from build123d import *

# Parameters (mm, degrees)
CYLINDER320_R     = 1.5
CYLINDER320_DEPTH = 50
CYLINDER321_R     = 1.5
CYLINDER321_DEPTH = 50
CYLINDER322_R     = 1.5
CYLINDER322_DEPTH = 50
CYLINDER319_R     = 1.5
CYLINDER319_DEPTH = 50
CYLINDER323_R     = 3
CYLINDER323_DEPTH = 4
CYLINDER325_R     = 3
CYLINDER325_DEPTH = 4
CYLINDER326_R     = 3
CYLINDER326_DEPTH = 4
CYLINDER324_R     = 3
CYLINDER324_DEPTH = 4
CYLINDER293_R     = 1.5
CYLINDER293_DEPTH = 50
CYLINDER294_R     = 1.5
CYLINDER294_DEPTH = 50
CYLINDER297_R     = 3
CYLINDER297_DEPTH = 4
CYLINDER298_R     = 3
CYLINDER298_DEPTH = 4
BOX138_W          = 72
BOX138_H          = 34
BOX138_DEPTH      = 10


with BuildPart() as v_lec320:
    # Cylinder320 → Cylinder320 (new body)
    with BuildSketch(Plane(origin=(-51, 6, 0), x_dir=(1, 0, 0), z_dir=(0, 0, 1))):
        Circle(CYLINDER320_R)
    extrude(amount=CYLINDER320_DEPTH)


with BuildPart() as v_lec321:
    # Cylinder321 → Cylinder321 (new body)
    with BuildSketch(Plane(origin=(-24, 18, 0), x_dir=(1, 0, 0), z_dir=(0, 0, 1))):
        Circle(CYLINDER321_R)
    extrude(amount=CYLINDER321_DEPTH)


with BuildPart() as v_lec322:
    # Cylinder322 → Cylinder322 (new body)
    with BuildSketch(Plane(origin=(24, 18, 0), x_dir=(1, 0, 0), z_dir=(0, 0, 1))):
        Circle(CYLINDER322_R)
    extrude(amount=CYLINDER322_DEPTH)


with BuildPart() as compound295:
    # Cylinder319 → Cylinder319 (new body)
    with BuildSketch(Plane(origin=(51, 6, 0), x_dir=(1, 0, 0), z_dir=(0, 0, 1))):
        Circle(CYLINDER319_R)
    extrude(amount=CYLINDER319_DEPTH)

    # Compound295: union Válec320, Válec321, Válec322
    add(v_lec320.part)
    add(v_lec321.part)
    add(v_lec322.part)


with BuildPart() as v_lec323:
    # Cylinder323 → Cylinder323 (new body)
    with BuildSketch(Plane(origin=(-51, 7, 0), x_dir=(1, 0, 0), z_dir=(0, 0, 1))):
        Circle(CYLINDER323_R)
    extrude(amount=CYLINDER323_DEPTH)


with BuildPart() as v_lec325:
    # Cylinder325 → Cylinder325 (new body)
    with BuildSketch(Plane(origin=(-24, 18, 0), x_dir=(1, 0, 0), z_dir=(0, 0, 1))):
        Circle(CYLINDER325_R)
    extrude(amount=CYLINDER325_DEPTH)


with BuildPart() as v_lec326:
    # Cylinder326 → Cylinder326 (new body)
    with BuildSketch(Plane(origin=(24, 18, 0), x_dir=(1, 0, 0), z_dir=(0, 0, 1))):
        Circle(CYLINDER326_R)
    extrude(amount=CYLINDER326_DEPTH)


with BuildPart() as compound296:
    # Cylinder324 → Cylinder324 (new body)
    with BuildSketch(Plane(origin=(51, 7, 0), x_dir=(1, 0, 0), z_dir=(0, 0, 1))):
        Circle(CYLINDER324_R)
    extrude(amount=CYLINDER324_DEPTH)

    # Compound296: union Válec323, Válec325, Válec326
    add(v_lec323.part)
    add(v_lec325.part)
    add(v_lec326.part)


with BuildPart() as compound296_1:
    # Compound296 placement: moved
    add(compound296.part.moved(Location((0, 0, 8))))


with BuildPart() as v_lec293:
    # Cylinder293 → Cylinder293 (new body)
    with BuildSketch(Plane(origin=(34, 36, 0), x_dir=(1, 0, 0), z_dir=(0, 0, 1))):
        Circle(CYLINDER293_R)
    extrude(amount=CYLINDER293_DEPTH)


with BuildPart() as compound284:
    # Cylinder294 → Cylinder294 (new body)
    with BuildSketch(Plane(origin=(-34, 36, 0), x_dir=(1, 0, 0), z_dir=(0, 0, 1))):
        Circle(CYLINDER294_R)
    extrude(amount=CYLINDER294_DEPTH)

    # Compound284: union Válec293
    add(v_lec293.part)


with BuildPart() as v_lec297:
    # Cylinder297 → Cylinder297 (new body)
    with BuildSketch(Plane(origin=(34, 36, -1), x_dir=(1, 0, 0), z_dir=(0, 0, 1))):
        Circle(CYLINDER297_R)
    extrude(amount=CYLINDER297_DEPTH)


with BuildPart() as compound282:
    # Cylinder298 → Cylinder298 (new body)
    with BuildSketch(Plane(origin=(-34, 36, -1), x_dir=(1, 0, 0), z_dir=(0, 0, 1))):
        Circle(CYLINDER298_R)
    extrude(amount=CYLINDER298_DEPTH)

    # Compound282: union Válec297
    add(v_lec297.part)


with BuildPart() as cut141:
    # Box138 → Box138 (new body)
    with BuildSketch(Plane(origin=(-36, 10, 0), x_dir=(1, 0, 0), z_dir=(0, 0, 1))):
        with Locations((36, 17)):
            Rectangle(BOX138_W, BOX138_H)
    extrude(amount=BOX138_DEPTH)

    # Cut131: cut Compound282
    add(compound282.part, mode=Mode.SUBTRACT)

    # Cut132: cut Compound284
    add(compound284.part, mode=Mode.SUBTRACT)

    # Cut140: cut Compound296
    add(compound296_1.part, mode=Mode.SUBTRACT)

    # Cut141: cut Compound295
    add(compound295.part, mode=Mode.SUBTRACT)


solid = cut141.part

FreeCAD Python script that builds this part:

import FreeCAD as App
import Part
import Sketcher

V = App.Vector


def add_polygon(sketch, points):
    """Adds a closed chain of lines whose ends are joined by coincident constraints."""
    first, n = sketch.GeometryCount, len(points)
    for a, b in zip(points, points[1:] + points[:1]):
        sketch.addGeometry(Part.LineSegment(App.Vector(*a, 0), App.Vector(*b, 0)), False)
    for i in range(n):
        sketch.addConstraint(Sketcher.Constraint("Coincident", first + i, 2, first + (i + 1) % n, 1))

doc = App.newDocument("Part")
body = doc.addObject("PartDesign::Body", "Body")

sketch1 = doc.addObject("Sketcher::SketchObject", "Sketch")
body.addObject(sketch1)
sketch1.AttachmentSupport = (doc.XY_Plane, [""])
sketch1.MapMode = "FlatFace"
sketch1.addGeometry(Part.Circle(V(-51, 6, 0), V(0, 0, 1), 1.5), False)
sketch1.addConstraint(Sketcher.Constraint("Diameter", 0, 3.0))
sketch1.addConstraint(Sketcher.Constraint("DistanceX", 0, 3, -1, 1, 51.0))
sketch1.addConstraint(Sketcher.Constraint("DistanceY", -1, 1, 0, 3, 6.0))
pad1 = doc.addObject("PartDesign::Pad", "Pad")
body.addObject(pad1)
pad1.Profile = sketch1
pad1.Length = 50
body2 = doc.addObject("PartDesign::Body", "Body001")

sketch2 = doc.addObject("Sketcher::SketchObject", "Sketch001")
body2.addObject(sketch2)
sketch2.AttachmentSupport = (doc.getObject("XY_Plane001"), [""])
sketch2.MapMode = "FlatFace"
sketch2.addGeometry(Part.Circle(V(-24, 18, 0), V(0, 0, 1), 1.5), False)
sketch2.addConstraint(Sketcher.Constraint("Diameter", 0, 3.0))
sketch2.addConstraint(Sketcher.Constraint("DistanceX", 0, 3, -1, 1, 24.0))
sketch2.addConstraint(Sketcher.Constraint("DistanceY", -1, 1, 0, 3, 18.0))
pad2 = doc.addObject("PartDesign::Pad", "Pad001")
body2.addObject(pad2)
pad2.Profile = sketch2
pad2.Length = 50
body3 = doc.addObject("PartDesign::Body", "Body002")

sketch3 = doc.addObject("Sketcher::SketchObject", "Sketch002")
body3.addObject(sketch3)
sketch3.AttachmentSupport = (doc.getObject("XY_Plane002"), [""])
sketch3.MapMode = "FlatFace"
sketch3.addGeometry(Part.Circle(V(24, 18, 0), V(0, 0, 1), 1.5), False)
sketch3.addConstraint(Sketcher.Constraint("Diameter", 0, 3.0))
sketch3.addConstraint(Sketcher.Constraint("DistanceX", -1, 1, 0, 3, 24.0))
sketch3.addConstraint(Sketcher.Constraint("DistanceY", -1, 1, 0, 3, 18.0))
pad3 = doc.addObject("PartDesign::Pad", "Pad002")
body3.addObject(pad3)
pad3.Profile = sketch3
pad3.Length = 50
body4 = doc.addObject("PartDesign::Body", "Body003")
body4.AllowCompound = True

sketch4 = doc.addObject("Sketcher::SketchObject", "Sketch003")
body4.addObject(sketch4)
sketch4.AttachmentSupport = (doc.getObject("XY_Plane003"), [""])
sketch4.MapMode = "FlatFace"
sketch4.addGeometry(Part.Circle(V(51, 6, 0), V(0, 0, 1), 1.5), False)
sketch4.addConstraint(Sketcher.Constraint("Diameter", 0, 3.0))
sketch4.addConstraint(Sketcher.Constraint("DistanceX", -1, 1, 0, 3, 51.0))
sketch4.addConstraint(Sketcher.Constraint("DistanceY", -1, 1, 0, 3, 6.0))
pad4 = doc.addObject("PartDesign::Pad", "Pad003")
body4.addObject(pad4)
pad4.Profile = sketch4
pad4.Length = 50
doc.recompute()

boolean = doc.addObject("PartDesign::Boolean", "Boolean")
body4.addObject(boolean)
boolean.Type = "Fuse"
boolean.addObjects([body])
doc.recompute()

boolean2 = doc.addObject("PartDesign::Boolean", "Boolean001")
body4.addObject(boolean2)
boolean2.Type = "Fuse"
boolean2.addObjects([body2])
doc.recompute()

boolean3 = doc.addObject("PartDesign::Boolean", "Boolean002")
body4.addObject(boolean3)
boolean3.Type = "Fuse"
boolean3.addObjects([body3])
body5 = doc.addObject("PartDesign::Body", "Body004")

sketch5 = doc.addObject("Sketcher::SketchObject", "Sketch004")
body5.addObject(sketch5)
sketch5.AttachmentSupport = (doc.getObject("XY_Plane004"), [""])
sketch5.MapMode = "FlatFace"
sketch5.addGeometry(Part.Circle(V(-51, 7, 0), V(0, 0, 1), 3), False)
sketch5.addConstraint(Sketcher.Constraint("Diameter", 0, 6.0))
sketch5.addConstraint(Sketcher.Constraint("DistanceX", 0, 3, -1, 1, 51.0))
sketch5.addConstraint(Sketcher.Constraint("DistanceY", -1, 1, 0, 3, 7.0))
pad5 = doc.addObject("PartDesign::Pad", "Pad004")
body5.addObject(pad5)
pad5.Profile = sketch5
pad5.Length = 4
body6 = doc.addObject("PartDesign::Body", "Body005")

sketch6 = doc.addObject("Sketcher::SketchObject", "Sketch005")
body6.addObject(sketch6)
sketch6.AttachmentSupport = (doc.getObject("XY_Plane005"), [""])
sketch6.MapMode = "FlatFace"
sketch6.addGeometry(Part.Circle(V(-24, 18, 0), V(0, 0, 1), 3), False)
sketch6.addConstraint(Sketcher.Constraint("Diameter", 0, 6.0))
sketch6.addConstraint(Sketcher.Constraint("DistanceX", 0, 3, -1, 1, 24.0))
sketch6.addConstraint(Sketcher.Constraint("DistanceY", -1, 1, 0, 3, 18.0))
pad6 = doc.addObject("PartDesign::Pad", "Pad005")
body6.addObject(pad6)
pad6.Profile = sketch6
pad6.Length = 4
body7 = doc.addObject("PartDesign::Body", "Body006")

sketch7 = doc.addObject("Sketcher::SketchObject", "Sketch006")
body7.addObject(sketch7)
sketch7.AttachmentSupport = (doc.getObject("XY_Plane006"), [""])
sketch7.MapMode = "FlatFace"
sketch7.addGeometry(Part.Circle(V(24, 18, 0), V(0, 0, 1), 3), False)
sketch7.addConstraint(Sketcher.Constraint("Diameter", 0, 6.0))
sketch7.addConstraint(Sketcher.Constraint("DistanceX", -1, 1, 0, 3, 24.0))
sketch7.addConstraint(Sketcher.Constraint("DistanceY", -1, 1, 0, 3, 18.0))
pad7 = doc.addObject("PartDesign::Pad", "Pad006")
body7.addObject(pad7)
pad7.Profile = sketch7
pad7.Length = 4
body8 = doc.addObject("PartDesign::Body", "Body007")
body8.AllowCompound = True

sketch8 = doc.addObject("Sketcher::SketchObject", "Sketch007")
body8.addObject(sketch8)
sketch8.AttachmentSupport = (doc.getObject("XY_Plane007"), [""])
sketch8.MapMode = "FlatFace"
sketch8.addGeometry(Part.Circle(V(51, 7, 0), V(0, 0, 1), 3), False)
sketch8.addConstraint(Sketcher.Constraint("Diameter", 0, 6.0))
sketch8.addConstraint(Sketcher.Constraint("DistanceX", -1, 1, 0, 3, 51.0))
sketch8.addConstraint(Sketcher.Constraint("DistanceY", -1, 1, 0, 3, 7.0))
pad8 = doc.addObject("PartDesign::Pad", "Pad007")
body8.addObject(pad8)
pad8.Profile = sketch8
pad8.Length = 4
doc.recompute()

boolean4 = doc.addObject("PartDesign::Boolean", "Boolean003")
body8.addObject(boolean4)
boolean4.Type = "Fuse"
boolean4.addObjects([body5])
doc.recompute()

boolean5 = doc.addObject("PartDesign::Boolean", "Boolean004")
body8.addObject(boolean5)
boolean5.Type = "Fuse"
boolean5.addObjects([body6])
doc.recompute()

boolean6 = doc.addObject("PartDesign::Boolean", "Boolean005")
body8.addObject(boolean6)
boolean6.Type = "Fuse"
boolean6.addObjects([body7])
body9 = doc.addObject("PartDesign::Body", "Body008")
body9.AllowCompound = True
doc.recompute()

body8.Placement = App.Placement(V(0, 0, 8), App.Rotation(V(0, 0, 1), 0))
boolean7 = doc.addObject("PartDesign::Boolean", "Boolean006")
body9.addObject(boolean7)
boolean7.Type = "Fuse"
boolean7.addObjects([body8])
body10 = doc.addObject("PartDesign::Body", "Body009")

sketch9 = doc.addObject("Sketcher::SketchObject", "Sketch008")
body10.addObject(sketch9)
sketch9.AttachmentSupport = (doc.getObject("XY_Plane009"), [""])
sketch9.MapMode = "FlatFace"
sketch9.addGeometry(Part.Circle(V(34, 36, 0), V(0, 0, 1), 1.5), False)
sketch9.addConstraint(Sketcher.Constraint("Diameter", 0, 3.0))
sketch9.addConstraint(Sketcher.Constraint("DistanceX", -1, 1, 0, 3, 34.0))
sketch9.addConstraint(Sketcher.Constraint("DistanceY", -1, 1, 0, 3, 36.0))
pad9 = doc.addObject("PartDesign::Pad", "Pad008")
body10.addObject(pad9)
pad9.Profile = sketch9
pad9.Length = 50
body11 = doc.addObject("PartDesign::Body", "Body010")
body11.AllowCompound = True

sketch10 = doc.addObject("Sketcher::SketchObject", "Sketch009")
body11.addObject(sketch10)
sketch10.AttachmentSupport = (doc.getObject("XY_Plane010"), [""])
sketch10.MapMode = "FlatFace"
sketch10.addGeometry(Part.Circle(V(-34, 36, 0), V(0, 0, 1), 1.5), False)
sketch10.addConstraint(Sketcher.Constraint("Diameter", 0, 3.0))
sketch10.addConstraint(Sketcher.Constraint("DistanceX", 0, 3, -1, 1, 34.0))
sketch10.addConstraint(Sketcher.Constraint("DistanceY", -1, 1, 0, 3, 36.0))
pad10 = doc.addObject("PartDesign::Pad", "Pad009")
body11.addObject(pad10)
pad10.Profile = sketch10
pad10.Length = 50
doc.recompute()

boolean8 = doc.addObject("PartDesign::Boolean", "Boolean007")
body11.addObject(boolean8)
boolean8.Type = "Fuse"
boolean8.addObjects([body10])
body12 = doc.addObject("PartDesign::Body", "Body011")

sketch11 = doc.addObject("Sketcher::SketchObject", "Sketch010")
body12.addObject(sketch11)
sketch11.AttachmentSupport = (doc.getObject("XY_Plane011"), [""])
sketch11.MapMode = "FlatFace"
sketch11.AttachmentOffset = App.Placement(V(0, 0, -1), App.Rotation())
sketch11.addGeometry(Part.Circle(V(34, 36, 0), V(0, 0, 1), 3), False)
sketch11.addConstraint(Sketcher.Constraint("Diameter", 0, 6.0))
sketch11.addConstraint(Sketcher.Constraint("DistanceX", -1, 1, 0, 3, 34.0))
sketch11.addConstraint(Sketcher.Constraint("DistanceY", -1, 1, 0, 3, 36.0))
pad11 = doc.addObject("PartDesign::Pad", "Pad010")
body12.addObject(pad11)
pad11.Profile = sketch11
pad11.Length = 4
body13 = doc.addObject("PartDesign::Body", "Body012")
body13.AllowCompound = True

sketch12 = doc.addObject("Sketcher::SketchObject", "Sketch011")
body13.addObject(sketch12)
sketch12.AttachmentSupport = (doc.getObject("XY_Plane012"), [""])
sketch12.MapMode = "FlatFace"
sketch12.AttachmentOffset = App.Placement(V(0, 0, -1), App.Rotation())
sketch12.addGeometry(Part.Circle(V(-34, 36, 0), V(0, 0, 1), 3), False)
sketch12.addConstraint(Sketcher.Constraint("Diameter", 0, 6.0))
sketch12.addConstraint(Sketcher.Constraint("DistanceX", 0, 3, -1, 1, 34.0))
sketch12.addConstraint(Sketcher.Constraint("DistanceY", -1, 1, 0, 3, 36.0))
pad12 = doc.addObject("PartDesign::Pad", "Pad011")
body13.addObject(pad12)
pad12.Profile = sketch12
pad12.Length = 4
doc.recompute()

boolean9 = doc.addObject("PartDesign::Boolean", "Boolean008")
body13.addObject(boolean9)
boolean9.Type = "Fuse"
boolean9.addObjects([body12])
body14 = doc.addObject("PartDesign::Body", "Body013")

sketch13 = doc.addObject("Sketcher::SketchObject", "Sketch012")
body14.addObject(sketch13)
sketch13.AttachmentSupport = (doc.getObject("XY_Plane013"), [""])
sketch13.MapMode = "FlatFace"
add_polygon(sketch13, [(-36, 44), (-36, 10), (36, 10), (36, 44)])
sketch13.addConstraint(Sketcher.Constraint("Vertical", 0))
sketch13.addConstraint(Sketcher.Constraint("Horizontal", 1))
sketch13.addConstraint(Sketcher.Constraint("Vertical", 2))
sketch13.addConstraint(Sketcher.Constraint("Horizontal", 3))
sketch13.addConstraint(Sketcher.Constraint("DistanceX", 1, 1, 1, 2, 72.0))
sketch13.addConstraint(Sketcher.Constraint("DistanceY", 0, 2, 0, 1, 34.0))
sketch13.addConstraint(Sketcher.Constraint("DistanceX", 0, 2, -1, 1, 36.0))
sketch13.addConstraint(Sketcher.Constraint("DistanceY", -1, 1, 0, 2, 10.0))
pad13 = doc.addObject("PartDesign::Pad", "Pad012")
body14.addObject(pad13)
pad13.Profile = sketch13
pad13.Length = 10
doc.recompute()

boolean10 = doc.addObject("PartDesign::Boolean", "Boolean009")
body14.addObject(boolean10)
boolean10.Type = "Cut"
boolean10.addObjects([body13])
doc.recompute()

boolean11 = doc.addObject("PartDesign::Boolean", "Boolean010")
body14.addObject(boolean11)
boolean11.Type = "Cut"
boolean11.addObjects([body11])
doc.recompute()

boolean12 = doc.addObject("PartDesign::Boolean", "Boolean011")
body14.addObject(boolean12)
boolean12.Type = "Cut"
boolean12.addObjects([body9])
doc.recompute()

boolean13 = doc.addObject("PartDesign::Boolean", "Boolean012")
body14.addObject(boolean13)
boolean13.Type = "Cut"
boolean13.addObjects([body4])

doc.recompute()
